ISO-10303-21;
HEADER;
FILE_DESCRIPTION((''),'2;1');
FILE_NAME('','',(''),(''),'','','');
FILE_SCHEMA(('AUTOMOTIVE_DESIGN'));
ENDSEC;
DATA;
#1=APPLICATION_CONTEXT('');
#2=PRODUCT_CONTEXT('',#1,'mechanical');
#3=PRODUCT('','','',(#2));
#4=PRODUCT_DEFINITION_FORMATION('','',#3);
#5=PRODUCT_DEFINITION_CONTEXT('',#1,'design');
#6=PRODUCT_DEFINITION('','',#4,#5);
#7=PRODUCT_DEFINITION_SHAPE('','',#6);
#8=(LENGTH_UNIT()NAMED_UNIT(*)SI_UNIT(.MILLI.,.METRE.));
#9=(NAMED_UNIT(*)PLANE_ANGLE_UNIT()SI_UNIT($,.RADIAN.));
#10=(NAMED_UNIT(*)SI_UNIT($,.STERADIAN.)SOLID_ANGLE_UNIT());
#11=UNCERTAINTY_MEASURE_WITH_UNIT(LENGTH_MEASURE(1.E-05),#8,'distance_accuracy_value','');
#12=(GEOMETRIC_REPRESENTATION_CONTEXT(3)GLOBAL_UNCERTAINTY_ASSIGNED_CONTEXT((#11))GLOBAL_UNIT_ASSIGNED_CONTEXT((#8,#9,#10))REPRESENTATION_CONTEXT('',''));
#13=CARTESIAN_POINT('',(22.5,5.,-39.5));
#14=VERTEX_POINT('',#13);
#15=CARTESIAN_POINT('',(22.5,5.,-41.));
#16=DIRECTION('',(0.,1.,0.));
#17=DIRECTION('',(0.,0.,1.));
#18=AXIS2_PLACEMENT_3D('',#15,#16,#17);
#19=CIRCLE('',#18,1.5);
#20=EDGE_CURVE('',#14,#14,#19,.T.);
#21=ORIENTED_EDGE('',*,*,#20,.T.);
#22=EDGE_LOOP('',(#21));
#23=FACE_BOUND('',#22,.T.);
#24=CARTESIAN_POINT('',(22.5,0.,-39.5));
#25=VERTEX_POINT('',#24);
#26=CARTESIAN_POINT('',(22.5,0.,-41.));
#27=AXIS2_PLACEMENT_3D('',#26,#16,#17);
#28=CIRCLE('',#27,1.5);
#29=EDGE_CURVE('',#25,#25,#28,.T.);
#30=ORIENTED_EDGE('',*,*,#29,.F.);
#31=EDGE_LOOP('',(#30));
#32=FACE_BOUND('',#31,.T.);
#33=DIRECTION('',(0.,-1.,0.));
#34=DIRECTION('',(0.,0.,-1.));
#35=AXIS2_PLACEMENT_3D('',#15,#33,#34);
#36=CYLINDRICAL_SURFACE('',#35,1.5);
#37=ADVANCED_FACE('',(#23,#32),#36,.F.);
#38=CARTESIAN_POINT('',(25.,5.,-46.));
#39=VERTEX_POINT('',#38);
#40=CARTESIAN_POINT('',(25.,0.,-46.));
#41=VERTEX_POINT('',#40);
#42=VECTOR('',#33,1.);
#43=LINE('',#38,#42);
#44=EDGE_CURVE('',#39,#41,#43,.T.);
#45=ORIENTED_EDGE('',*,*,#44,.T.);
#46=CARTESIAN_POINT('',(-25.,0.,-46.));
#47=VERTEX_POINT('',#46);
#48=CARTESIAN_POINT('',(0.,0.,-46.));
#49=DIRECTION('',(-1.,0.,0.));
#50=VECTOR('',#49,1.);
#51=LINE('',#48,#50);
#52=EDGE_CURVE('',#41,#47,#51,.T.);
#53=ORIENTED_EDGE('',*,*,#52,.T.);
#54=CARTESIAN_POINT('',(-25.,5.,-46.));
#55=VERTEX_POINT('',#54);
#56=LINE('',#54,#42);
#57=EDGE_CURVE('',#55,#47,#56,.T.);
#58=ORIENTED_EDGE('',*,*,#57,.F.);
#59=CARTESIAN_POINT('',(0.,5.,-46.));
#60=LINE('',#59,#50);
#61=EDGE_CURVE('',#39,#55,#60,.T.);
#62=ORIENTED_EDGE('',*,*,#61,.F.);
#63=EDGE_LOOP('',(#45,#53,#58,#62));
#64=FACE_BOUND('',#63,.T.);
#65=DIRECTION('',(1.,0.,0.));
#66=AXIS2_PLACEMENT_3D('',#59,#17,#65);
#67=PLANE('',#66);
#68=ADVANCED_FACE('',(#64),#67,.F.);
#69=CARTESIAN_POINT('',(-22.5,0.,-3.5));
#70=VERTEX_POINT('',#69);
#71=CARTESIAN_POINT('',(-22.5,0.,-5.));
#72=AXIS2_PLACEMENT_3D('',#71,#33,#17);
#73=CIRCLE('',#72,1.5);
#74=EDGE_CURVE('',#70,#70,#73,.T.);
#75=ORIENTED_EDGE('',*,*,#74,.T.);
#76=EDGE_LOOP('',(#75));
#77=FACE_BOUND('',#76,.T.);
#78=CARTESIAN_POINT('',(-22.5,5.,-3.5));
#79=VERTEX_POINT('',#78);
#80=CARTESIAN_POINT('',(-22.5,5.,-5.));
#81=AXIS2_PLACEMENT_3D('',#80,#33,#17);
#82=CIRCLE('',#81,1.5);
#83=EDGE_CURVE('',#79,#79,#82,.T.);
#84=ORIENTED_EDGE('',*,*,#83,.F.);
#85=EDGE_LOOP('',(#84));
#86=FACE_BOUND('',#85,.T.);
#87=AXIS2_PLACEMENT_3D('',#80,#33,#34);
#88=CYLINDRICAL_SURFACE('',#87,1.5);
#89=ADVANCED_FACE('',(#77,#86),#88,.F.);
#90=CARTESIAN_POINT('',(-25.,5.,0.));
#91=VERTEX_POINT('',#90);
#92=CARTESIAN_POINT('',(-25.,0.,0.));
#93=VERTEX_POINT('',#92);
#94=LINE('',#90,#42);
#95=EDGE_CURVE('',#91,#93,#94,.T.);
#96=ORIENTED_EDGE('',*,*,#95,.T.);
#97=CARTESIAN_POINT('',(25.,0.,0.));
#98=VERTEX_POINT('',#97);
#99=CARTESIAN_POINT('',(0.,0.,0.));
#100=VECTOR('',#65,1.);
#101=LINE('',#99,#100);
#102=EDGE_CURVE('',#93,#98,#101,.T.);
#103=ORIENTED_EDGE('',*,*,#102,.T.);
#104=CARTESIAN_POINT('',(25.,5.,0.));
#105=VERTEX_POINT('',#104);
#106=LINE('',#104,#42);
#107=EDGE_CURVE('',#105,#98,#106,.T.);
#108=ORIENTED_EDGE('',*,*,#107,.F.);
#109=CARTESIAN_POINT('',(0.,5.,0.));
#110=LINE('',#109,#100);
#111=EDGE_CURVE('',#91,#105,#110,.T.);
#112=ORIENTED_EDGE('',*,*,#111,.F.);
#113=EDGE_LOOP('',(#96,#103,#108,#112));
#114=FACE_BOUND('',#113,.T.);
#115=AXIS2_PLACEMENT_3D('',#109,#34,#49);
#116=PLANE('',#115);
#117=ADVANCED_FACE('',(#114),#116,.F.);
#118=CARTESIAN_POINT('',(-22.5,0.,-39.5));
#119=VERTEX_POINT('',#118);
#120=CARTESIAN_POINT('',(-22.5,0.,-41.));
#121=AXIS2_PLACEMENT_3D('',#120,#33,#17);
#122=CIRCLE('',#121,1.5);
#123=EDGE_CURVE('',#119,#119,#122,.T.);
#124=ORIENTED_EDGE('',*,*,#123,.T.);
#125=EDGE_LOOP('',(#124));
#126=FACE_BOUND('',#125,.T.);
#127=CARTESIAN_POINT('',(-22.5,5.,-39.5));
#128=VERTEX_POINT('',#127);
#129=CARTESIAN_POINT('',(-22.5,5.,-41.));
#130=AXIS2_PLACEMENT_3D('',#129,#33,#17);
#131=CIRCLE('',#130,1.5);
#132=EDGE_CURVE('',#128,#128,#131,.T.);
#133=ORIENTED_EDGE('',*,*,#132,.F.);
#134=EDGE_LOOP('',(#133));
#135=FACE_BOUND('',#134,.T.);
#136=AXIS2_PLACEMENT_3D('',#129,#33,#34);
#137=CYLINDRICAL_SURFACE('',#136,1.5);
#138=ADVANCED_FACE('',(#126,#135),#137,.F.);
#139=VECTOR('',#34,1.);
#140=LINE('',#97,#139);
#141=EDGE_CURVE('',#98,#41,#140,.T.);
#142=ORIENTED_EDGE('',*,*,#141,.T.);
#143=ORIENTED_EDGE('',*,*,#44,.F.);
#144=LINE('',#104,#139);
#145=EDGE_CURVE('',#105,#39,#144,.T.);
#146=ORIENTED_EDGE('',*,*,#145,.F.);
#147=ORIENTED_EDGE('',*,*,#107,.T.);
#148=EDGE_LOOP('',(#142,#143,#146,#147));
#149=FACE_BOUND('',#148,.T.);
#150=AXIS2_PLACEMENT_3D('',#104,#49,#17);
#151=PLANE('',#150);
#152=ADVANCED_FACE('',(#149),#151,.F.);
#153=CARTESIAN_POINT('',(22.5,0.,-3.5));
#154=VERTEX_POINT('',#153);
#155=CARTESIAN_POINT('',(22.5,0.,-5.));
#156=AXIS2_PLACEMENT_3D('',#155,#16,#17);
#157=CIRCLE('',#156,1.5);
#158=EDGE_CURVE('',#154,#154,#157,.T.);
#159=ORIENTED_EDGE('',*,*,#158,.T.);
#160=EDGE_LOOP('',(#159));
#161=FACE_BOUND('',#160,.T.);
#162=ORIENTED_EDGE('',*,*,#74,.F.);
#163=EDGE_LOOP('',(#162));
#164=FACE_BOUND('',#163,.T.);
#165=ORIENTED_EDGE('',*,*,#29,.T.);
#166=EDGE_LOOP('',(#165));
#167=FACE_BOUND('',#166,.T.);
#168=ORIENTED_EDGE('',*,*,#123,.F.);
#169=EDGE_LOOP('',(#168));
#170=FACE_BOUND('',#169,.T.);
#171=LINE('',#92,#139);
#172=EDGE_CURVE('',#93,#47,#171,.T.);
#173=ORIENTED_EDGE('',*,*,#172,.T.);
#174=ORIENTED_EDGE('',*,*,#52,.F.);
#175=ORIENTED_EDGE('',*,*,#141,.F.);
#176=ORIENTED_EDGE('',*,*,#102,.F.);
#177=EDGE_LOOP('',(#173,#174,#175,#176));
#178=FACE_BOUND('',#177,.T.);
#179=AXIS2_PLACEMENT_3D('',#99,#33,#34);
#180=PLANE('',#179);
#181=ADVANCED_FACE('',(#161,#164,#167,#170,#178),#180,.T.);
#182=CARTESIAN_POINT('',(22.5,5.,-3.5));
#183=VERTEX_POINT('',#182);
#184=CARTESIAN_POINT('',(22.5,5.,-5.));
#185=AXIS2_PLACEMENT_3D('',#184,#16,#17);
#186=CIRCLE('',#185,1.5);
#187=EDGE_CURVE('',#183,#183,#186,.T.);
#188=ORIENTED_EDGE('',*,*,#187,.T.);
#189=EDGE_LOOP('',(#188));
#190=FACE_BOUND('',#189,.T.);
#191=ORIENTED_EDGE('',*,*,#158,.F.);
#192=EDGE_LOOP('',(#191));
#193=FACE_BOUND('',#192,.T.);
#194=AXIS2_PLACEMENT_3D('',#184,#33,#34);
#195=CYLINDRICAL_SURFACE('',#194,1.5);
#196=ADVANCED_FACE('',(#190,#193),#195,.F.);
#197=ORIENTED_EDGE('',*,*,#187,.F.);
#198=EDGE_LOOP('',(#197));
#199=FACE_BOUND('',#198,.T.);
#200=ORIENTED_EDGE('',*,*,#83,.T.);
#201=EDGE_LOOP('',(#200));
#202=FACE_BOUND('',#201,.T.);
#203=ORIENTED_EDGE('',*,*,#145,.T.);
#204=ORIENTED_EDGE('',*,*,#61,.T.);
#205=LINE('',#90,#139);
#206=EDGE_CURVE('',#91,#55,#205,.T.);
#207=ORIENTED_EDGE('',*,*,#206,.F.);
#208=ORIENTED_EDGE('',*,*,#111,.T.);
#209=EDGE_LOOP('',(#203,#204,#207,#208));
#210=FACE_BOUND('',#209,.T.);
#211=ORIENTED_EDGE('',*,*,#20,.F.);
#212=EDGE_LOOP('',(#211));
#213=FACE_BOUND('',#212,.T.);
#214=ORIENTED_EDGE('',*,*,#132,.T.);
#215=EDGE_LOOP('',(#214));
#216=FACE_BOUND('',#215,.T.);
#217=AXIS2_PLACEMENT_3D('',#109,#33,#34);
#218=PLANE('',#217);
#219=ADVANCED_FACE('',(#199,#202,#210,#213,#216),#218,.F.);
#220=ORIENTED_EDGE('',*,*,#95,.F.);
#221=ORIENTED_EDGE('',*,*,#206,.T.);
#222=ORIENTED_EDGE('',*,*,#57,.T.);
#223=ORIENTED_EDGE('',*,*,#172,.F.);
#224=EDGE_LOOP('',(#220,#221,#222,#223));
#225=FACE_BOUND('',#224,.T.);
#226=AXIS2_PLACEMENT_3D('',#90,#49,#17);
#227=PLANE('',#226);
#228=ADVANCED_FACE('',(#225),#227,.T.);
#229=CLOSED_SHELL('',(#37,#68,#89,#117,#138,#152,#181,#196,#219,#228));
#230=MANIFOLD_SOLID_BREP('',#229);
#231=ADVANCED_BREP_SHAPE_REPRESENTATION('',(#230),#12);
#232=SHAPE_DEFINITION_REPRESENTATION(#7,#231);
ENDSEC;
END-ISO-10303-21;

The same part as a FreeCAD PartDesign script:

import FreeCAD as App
import Part
import Sketcher

V = App.Vector

doc = App.newDocument("Part")
body = doc.addObject("PartDesign::Body", "Body")

# Sketch on XZ plane
sketch1 = body.newObject("Sketcher::SketchObject", "Sketch")
sketch1.AttachmentSupport = (doc.getObject("XZ_Plane"), [""])
sketch1.MapMode = "FlatFace"
sketch1.addGeometry([
    Part.LineSegment(V(0, -46, 0), V(0, 0, 0)),  # 0
    Part.LineSegment(V(0, 0, 0), V(25, 0, 0)),  # 1
    Part.LineSegment(V(25, 0, 0), V(25, -46, 0)),  # 2
    Part.LineSegment(V(25, -46, 0), V(0, -46, 0)),  # 3
    Part.Circle(V(22.5, -5, 0), V(0, 0, 1), 1.5),  # 4
    Part.Circle(V(22.5, -41, 0), V(0, 0, 1), 1.5),  # 5
], False)
sketch1.addConstraint([
    Sketcher.Constraint("Coincident", 0, 2, 1, 1),
    Sketcher.Constraint("Coincident", 1, 2, 2, 1),
    Sketcher.Constraint("Coincident", 2, 2, 3, 1),
    Sketcher.Constraint("Coincident", 3, 2, 0, 1),
    Sketcher.Constraint("Vertical", 0),
    Sketcher.Constraint("Horizontal", 1),
    Sketcher.Constraint("Vertical", 2),
    Sketcher.Constraint("Horizontal", 3),
    Sketcher.Constraint("Coincident", 0, 2, -1, 1),
    Sketcher.Constraint("Equal", 4, 5),
    Sketcher.Constraint("Vertical", 4, 3, 5, 3),
    Sketcher.Constraint("Diameter", 4, 3.0),
    Sketcher.Constraint("DistanceX", 1, 1, 1, 2, 25.0),
    Sketcher.Constraint("DistanceY", 0, 1, 0, 2, 46.0),
    Sketcher.Constraint("DistanceY", 4, 3, -1, 1, 5.0),
    Sketcher.Constraint("DistanceY", 5, 3, -1, 1, 41.0),
    Sketcher.Constraint("DistanceX", -1, 1, 4, 3, 22.5),
])
pad1 = body.newObject("PartDesign::Pad", "Pad")
pad1.Profile = sketch1
pad1.Length = 5
pad1.Reversed = True
doc.recompute()

mirrored = body.newObject("PartDesign::Mirrored", "Mirrored")
mirrored.Originals = [pad1]
mirrored.MirrorPlane = (doc.getObject("YZ_Plane"), [""])
body.Tip = mirrored

doc.recompute()
